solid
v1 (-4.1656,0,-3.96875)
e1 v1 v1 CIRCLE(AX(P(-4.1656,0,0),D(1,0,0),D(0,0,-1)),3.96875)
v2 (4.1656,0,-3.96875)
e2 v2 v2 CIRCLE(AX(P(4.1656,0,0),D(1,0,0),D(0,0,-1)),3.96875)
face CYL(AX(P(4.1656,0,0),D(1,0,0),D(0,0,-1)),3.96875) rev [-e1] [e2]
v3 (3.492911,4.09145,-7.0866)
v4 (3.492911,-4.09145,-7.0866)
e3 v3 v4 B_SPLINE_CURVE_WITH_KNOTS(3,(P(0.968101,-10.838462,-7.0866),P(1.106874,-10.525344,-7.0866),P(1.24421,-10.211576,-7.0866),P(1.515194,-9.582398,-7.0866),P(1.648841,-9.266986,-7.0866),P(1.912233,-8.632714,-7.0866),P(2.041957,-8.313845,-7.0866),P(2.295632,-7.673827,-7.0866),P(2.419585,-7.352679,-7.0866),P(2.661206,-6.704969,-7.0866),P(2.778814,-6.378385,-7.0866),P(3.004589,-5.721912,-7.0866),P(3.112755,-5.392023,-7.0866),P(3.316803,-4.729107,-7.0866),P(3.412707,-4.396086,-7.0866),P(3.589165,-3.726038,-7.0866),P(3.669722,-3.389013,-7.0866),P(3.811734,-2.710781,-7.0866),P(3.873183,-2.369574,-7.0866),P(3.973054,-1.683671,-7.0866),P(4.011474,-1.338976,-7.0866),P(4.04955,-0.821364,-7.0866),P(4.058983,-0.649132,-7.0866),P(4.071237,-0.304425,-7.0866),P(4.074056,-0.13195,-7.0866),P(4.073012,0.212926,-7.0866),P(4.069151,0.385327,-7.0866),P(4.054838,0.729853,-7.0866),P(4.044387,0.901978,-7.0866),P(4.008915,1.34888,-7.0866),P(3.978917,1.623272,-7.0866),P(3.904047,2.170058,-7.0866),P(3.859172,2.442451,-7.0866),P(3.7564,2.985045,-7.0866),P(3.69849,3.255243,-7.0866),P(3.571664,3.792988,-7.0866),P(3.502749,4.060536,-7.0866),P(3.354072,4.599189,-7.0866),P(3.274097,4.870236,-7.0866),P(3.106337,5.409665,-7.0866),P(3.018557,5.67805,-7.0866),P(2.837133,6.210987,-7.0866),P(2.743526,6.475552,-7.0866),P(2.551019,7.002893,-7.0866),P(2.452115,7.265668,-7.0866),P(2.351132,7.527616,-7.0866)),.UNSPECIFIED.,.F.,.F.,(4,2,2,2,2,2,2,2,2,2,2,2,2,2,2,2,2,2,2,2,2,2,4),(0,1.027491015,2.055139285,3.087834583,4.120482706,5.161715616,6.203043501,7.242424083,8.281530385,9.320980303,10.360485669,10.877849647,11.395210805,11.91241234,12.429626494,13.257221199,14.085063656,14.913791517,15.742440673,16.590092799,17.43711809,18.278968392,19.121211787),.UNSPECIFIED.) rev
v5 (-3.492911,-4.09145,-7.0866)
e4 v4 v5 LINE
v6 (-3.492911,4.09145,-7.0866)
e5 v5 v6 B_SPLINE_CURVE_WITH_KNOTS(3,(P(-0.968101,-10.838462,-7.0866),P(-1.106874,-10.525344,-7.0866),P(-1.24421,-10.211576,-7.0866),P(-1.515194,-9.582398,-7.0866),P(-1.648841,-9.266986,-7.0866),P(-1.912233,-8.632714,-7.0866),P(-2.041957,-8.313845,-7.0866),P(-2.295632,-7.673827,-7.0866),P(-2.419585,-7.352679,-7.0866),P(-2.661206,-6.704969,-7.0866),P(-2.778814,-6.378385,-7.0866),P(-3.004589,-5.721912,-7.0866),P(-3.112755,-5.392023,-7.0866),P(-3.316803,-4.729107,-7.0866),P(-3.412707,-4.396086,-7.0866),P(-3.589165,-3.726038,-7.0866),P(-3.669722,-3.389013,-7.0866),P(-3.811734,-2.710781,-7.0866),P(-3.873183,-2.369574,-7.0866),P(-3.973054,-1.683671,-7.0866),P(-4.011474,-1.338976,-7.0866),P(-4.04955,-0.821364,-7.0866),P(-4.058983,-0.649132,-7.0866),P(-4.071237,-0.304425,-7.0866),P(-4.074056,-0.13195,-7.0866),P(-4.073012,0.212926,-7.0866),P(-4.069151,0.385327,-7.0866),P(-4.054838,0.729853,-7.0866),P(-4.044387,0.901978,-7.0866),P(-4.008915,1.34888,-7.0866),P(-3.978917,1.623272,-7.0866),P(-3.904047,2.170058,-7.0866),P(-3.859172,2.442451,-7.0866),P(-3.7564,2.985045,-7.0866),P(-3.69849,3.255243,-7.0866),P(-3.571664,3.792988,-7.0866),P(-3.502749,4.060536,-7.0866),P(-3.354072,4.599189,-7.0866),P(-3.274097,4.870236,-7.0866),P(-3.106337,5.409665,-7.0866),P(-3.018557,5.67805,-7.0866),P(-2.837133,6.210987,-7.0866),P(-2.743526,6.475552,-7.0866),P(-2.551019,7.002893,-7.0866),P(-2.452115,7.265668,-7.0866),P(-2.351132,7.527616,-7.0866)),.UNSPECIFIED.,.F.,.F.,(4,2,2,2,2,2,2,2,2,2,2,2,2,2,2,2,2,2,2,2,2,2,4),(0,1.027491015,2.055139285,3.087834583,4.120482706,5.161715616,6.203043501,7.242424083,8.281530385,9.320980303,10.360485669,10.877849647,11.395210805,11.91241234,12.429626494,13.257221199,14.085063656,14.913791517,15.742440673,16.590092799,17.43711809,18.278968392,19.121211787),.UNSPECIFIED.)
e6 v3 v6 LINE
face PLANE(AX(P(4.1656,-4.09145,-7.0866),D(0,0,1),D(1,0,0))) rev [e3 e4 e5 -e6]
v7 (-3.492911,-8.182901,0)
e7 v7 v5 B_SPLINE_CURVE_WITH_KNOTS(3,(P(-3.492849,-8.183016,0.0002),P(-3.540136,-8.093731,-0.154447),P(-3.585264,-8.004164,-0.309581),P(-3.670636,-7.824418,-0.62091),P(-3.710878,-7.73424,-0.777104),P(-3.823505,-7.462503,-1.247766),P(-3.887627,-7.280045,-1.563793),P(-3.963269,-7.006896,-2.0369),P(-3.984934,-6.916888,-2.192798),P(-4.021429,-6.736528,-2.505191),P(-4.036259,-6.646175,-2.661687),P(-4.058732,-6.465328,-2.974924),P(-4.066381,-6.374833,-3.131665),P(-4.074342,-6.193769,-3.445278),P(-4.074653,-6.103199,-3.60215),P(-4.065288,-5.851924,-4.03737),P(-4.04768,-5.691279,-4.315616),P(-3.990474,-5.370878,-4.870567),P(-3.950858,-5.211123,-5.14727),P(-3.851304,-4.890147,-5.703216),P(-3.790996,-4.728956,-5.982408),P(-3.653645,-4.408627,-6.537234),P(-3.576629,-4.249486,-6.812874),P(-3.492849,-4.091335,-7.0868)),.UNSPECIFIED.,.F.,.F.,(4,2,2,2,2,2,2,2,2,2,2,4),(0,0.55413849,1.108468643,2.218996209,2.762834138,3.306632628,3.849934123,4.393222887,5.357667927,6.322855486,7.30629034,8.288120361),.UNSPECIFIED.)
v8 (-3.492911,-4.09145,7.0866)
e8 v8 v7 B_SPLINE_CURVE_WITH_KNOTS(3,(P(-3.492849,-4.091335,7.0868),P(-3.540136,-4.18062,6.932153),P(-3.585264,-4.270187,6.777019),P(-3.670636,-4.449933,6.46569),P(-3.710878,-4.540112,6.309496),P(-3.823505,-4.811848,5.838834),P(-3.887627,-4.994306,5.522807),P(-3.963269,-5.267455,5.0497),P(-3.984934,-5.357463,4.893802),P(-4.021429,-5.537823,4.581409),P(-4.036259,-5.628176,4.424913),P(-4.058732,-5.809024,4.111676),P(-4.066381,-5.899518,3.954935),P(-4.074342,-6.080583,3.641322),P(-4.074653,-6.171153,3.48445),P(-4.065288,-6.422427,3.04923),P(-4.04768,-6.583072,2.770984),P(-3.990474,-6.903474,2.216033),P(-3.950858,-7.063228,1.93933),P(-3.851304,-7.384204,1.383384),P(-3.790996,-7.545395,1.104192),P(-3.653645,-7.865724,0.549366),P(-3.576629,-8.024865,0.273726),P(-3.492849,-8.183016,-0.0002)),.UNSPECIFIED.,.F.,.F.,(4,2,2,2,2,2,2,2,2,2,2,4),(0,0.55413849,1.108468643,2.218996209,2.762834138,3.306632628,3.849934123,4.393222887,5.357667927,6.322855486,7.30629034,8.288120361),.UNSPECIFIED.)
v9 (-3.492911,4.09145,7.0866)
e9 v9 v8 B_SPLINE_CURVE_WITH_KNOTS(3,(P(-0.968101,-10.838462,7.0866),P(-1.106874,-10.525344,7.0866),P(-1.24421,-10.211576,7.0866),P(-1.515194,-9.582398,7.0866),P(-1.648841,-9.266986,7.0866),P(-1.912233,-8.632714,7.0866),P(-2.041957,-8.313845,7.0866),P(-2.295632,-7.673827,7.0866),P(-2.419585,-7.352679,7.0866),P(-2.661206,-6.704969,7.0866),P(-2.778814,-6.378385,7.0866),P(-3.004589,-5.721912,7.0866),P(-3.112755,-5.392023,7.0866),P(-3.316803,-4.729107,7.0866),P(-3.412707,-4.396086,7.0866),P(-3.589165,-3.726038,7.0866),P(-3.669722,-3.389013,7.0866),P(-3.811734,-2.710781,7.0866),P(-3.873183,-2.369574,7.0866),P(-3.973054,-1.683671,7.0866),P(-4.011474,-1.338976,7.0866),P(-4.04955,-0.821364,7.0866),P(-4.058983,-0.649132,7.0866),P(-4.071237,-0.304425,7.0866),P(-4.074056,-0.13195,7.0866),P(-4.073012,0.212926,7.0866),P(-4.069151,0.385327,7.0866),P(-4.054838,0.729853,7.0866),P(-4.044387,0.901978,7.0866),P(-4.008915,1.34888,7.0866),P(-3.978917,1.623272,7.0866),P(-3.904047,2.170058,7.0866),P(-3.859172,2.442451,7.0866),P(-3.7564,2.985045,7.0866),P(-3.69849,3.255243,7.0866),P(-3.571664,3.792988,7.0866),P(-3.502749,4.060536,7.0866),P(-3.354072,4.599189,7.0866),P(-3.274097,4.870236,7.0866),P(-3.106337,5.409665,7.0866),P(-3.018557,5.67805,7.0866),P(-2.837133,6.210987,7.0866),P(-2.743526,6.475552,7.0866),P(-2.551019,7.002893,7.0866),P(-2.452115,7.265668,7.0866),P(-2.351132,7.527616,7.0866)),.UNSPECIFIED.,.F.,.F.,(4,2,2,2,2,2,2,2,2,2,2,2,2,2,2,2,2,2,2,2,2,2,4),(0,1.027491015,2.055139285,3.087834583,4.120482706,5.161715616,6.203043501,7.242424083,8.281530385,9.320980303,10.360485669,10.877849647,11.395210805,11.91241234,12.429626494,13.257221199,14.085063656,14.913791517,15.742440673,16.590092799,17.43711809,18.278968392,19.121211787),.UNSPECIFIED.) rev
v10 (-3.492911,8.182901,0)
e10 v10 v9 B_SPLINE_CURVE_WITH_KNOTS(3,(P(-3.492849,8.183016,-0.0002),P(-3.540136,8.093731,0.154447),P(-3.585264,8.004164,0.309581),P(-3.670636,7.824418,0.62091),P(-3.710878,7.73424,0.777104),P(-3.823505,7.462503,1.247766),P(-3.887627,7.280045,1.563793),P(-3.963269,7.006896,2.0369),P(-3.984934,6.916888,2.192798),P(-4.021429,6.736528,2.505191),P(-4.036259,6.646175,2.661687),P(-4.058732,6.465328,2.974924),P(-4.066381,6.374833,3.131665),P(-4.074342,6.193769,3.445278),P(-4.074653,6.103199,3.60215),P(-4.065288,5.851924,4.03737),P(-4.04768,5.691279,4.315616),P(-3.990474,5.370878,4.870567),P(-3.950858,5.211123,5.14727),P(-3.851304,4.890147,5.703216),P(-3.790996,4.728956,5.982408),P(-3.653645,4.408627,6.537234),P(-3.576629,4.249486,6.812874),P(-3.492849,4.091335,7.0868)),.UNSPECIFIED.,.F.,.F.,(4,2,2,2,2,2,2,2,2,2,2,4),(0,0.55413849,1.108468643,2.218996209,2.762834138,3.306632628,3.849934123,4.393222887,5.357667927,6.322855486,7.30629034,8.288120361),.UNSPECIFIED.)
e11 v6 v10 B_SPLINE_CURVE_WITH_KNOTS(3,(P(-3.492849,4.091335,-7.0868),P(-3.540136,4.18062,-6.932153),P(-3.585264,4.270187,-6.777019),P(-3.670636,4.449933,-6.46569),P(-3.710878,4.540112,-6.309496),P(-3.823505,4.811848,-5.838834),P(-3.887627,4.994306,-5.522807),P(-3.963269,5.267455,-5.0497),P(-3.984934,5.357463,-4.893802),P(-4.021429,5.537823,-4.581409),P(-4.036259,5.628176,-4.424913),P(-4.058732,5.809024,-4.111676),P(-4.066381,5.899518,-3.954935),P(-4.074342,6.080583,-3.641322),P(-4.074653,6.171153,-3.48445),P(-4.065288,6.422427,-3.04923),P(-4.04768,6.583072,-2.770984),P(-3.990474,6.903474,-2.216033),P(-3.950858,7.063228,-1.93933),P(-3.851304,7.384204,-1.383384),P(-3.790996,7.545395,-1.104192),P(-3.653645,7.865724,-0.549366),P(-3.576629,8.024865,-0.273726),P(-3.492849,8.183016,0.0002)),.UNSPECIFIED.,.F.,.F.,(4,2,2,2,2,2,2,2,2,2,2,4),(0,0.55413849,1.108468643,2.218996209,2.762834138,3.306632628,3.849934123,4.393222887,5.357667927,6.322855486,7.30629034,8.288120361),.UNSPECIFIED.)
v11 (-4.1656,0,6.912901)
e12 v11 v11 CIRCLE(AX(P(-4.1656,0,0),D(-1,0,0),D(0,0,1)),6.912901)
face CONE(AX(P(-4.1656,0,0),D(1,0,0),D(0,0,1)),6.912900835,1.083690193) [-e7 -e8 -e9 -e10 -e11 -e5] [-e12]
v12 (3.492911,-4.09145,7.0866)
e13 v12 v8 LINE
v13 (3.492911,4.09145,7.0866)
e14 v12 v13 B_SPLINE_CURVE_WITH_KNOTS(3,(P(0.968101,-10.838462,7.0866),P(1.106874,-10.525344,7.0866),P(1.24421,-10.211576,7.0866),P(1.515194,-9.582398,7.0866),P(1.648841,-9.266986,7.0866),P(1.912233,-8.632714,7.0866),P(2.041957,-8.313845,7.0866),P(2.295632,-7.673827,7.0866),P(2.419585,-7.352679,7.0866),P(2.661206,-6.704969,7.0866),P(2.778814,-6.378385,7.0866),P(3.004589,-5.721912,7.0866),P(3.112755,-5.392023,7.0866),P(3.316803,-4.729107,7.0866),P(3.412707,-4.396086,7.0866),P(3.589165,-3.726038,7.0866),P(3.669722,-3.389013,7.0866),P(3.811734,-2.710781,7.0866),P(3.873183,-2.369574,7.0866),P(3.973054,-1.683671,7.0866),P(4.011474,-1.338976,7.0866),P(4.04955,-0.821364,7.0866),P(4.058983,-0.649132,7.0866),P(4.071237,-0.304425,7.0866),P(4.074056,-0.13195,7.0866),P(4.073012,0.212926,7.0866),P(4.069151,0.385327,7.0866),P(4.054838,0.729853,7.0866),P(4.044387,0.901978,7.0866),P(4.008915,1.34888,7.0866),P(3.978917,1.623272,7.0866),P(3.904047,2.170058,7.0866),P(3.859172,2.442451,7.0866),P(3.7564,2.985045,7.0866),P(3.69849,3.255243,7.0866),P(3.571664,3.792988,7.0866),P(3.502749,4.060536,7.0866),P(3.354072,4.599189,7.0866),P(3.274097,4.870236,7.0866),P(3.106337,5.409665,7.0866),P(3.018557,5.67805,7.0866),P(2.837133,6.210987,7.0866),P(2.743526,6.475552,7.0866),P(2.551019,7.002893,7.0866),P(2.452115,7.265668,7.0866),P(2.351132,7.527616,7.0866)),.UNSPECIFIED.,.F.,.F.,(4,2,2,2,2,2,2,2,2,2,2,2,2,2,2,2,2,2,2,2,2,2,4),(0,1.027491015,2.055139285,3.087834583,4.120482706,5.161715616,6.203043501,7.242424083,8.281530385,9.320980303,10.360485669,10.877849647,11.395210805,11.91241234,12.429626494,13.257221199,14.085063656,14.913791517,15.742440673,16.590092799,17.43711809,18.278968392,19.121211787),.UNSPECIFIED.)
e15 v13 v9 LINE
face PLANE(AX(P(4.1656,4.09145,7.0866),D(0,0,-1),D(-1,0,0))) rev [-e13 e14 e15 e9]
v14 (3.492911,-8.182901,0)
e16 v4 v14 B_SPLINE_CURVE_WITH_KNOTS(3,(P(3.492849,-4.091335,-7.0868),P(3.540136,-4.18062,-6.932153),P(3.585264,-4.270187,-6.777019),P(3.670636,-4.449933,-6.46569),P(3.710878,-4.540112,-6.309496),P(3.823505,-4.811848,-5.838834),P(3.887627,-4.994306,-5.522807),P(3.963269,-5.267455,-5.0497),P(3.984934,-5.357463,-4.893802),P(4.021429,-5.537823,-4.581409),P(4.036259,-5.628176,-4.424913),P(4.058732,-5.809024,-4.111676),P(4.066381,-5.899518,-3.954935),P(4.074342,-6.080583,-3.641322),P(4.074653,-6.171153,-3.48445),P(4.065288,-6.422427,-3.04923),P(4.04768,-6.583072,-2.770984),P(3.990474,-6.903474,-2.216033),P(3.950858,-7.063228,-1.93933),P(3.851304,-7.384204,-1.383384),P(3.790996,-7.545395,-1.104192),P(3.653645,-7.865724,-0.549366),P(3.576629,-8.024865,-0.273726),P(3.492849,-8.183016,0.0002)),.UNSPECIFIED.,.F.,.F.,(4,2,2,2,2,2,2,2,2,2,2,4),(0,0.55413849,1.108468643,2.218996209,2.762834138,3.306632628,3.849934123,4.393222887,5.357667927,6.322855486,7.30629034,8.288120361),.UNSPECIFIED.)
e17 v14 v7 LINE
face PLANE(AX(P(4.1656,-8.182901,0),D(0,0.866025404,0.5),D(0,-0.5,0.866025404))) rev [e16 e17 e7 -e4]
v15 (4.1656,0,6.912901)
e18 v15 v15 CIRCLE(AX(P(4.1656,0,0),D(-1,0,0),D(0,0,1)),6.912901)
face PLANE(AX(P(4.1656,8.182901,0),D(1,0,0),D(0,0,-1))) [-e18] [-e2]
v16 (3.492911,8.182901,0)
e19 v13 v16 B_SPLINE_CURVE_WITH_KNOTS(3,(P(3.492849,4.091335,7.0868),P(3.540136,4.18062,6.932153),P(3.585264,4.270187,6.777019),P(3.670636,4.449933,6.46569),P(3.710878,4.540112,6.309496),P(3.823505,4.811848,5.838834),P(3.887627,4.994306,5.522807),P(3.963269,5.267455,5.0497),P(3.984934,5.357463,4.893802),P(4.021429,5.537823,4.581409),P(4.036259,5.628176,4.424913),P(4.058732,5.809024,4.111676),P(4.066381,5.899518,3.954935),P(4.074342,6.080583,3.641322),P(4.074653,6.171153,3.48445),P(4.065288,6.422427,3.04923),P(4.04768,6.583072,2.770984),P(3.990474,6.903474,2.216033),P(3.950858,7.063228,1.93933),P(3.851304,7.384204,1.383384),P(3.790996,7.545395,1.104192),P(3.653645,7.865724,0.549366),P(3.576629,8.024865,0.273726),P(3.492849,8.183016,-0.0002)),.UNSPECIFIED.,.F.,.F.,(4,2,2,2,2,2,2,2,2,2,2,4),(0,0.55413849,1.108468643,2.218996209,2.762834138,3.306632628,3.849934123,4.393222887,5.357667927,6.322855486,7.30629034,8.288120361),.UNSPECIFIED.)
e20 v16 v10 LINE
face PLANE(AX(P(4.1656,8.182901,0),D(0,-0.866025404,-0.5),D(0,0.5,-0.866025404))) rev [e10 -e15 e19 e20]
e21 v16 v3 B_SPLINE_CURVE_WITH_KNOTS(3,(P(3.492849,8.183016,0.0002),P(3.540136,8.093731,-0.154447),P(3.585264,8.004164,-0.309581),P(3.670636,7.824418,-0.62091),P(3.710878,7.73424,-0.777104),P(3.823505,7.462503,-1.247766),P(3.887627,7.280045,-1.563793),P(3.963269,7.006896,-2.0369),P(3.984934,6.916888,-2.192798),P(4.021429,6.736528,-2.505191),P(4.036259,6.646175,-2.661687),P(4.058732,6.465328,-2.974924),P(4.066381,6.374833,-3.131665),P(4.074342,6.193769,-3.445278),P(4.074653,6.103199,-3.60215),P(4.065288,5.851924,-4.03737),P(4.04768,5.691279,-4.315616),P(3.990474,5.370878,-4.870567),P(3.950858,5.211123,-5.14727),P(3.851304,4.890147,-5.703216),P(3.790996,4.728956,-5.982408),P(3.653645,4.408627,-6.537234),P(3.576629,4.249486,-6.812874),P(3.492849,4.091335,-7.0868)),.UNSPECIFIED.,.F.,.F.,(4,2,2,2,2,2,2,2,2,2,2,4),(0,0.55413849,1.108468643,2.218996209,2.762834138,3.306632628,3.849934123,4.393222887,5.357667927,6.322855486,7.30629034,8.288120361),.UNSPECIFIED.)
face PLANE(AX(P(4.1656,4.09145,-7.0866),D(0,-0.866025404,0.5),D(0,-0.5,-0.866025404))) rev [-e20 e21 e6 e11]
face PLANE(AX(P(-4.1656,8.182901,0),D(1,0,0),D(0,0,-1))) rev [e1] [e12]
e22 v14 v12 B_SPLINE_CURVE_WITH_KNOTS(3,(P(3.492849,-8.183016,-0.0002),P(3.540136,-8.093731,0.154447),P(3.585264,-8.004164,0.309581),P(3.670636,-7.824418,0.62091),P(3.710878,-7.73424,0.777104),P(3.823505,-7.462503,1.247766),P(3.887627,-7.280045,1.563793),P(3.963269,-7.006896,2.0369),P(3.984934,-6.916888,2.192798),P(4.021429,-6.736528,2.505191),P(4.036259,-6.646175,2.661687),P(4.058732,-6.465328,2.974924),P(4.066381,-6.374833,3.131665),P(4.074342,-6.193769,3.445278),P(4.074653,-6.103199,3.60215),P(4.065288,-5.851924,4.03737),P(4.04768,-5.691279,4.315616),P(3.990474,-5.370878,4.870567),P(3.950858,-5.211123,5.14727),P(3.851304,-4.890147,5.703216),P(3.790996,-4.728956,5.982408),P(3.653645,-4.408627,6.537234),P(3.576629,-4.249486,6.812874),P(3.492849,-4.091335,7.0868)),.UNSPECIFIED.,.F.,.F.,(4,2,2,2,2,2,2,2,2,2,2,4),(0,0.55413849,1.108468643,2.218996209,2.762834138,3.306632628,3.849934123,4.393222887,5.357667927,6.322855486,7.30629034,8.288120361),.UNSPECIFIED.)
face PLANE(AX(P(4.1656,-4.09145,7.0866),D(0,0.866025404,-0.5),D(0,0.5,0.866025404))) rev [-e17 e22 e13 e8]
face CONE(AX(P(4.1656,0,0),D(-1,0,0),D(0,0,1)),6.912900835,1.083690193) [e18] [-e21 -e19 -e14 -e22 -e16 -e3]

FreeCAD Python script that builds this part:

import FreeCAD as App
import Part
import Sketcher
Q = App.Units.Quantity


def add_polygon(sketch, points):
    """Adds a closed chain of lines whose ends are joined by coincident constraints."""
    first, n = sketch.GeometryCount, len(points)
    for a, b in zip(points, points[1:] + points[:1]):
        sketch.addGeometry(Part.LineSegment(App.Vector(*a, 0), App.Vector(*b, 0)), False)
    for i in range(n):
        sketch.addConstraint(Sketcher.Constraint("Coincident", first + i, 2, first + (i + 1) % n, 1))

doc = App.newDocument("Part")
params = doc.addObject("Spreadsheet::Sheet", "Params")
for row, (alias, value) in enumerate([
    ("pad1_length", "0.328 in"),
    ("sketch2_height", "0.05 in"),
    ("groove_angle", "360 deg"),
    ("sketch3_diameter", "0.3125 in"),
    ("hole_diameter", "0.3125 in"),
], start=1):
    params.set(f"A{row}", alias)
    params.set(f"B{row}", "=" + value)
    params.setAlias(f"B{row}", alias)

body = doc.addObject("PartDesign::Body", "Body")

# Sketch on YZ plane
sketch1 = body.newObject("Sketcher::SketchObject", "Sketch")
sketch1.AttachmentSupport = (doc.getObject("YZ_Plane"), [""])
sketch1.MapMode = "FlatFace"
add_polygon(sketch1, [(8, 0), (4, 7), (-4, 7), (-8, 0), (-4, -7), (4, -7)])  # lines 0-5
sketch1.addConstraint(Sketcher.Constraint("Horizontal", 1))
sketch1.addConstraint(Sketcher.Constraint("Horizontal", 4))
sketch1.addConstraint(Sketcher.Constraint("Symmetric", 0, 2, 3, 2, -1, 1))
sketch1.addConstraint(Sketcher.Constraint("Symmetric", 2, 2, 5, 2, -1, 1))
sketch1.addConstraint(Sketcher.Constraint("PointOnObject", 2, 2, -1))
sketch1.addConstraint(Sketcher.Constraint("Parallel", 2, 5))
sketch1.addConstraint(Sketcher.Constraint("Vertical", 1, 2, 3, 2))
sketch1.addConstraint(Sketcher.Constraint("Angle", 0, Q("120 deg")))
sketch1.addConstraint(Sketcher.Constraint("DistanceY", -1, 1, 0, 2, Q("0.279 in")))
sketch1.addConstraint(Sketcher.Constraint("DistanceX", 1, 2, 1, 1, 8.182901))
pad1 = body.newObject("PartDesign::Pad", "Pad")
pad1.Profile = sketch1
pad1.setExpression("Length", "Params.pad1_length")
pad1.Midplane = True

# Sketch on XY plane
sketch2 = body.newObject("Sketcher::SketchObject", "Sketch001")
sketch2.AttachmentSupport = (doc.getObject("XY_Plane"), [""])
sketch2.MapMode = "FlatFace"
add_polygon(sketch2, [(3.5, 8.2), (4.2, 6.9), (4.2, 8.2)])  # lines 0-2
sketch2.addConstraint(Sketcher.Constraint("Vertical", 1))
sketch2.addConstraint(Sketcher.Constraint("Horizontal", 2))
sketch2.addConstraint(Sketcher.Constraint("DistanceY", 1, 1, 1, 2, Q("0.05 in")))
sketch2.addConstraint(Sketcher.Constraint("DistanceX", -1, 1, 0, 2, Q("0.164 in")))
sketch2.addConstraint(Sketcher.Constraint("DistanceX", 2, 2, 2, 1, 0.672689))
sketch2.addConstraint(Sketcher.Constraint("DistanceY", -1, 1, 0, 2, 6.912901))
sketch2.setExpression("Constraints[5]", "Params.sketch2_height")
groove = body.newObject("PartDesign::Groove", "Groove")
groove.Profile = sketch2
groove.ReferenceAxis = (sketch2, ["H_Axis"])
groove.setExpression("Angle", "Params.groove_angle")
doc.recompute()

mirrored = body.newObject("PartDesign::Mirrored", "Mirrored")
mirrored.Originals = [groove]
mirrored.MirrorPlane = (doc.getObject("YZ_Plane"), [""])
body.Tip = mirrored

# Sketch on YZ plane
sketch3 = body.newObject("Sketcher::SketchObject", "Sketch002")
sketch3.AttachmentSupport = (doc.getObject("YZ_Plane"), [""])
sketch3.MapMode = "FlatFace"
sketch3.AttachmentOffset = App.Placement(App.Vector(0, 0, 0.164 * 25.4), App.Rotation())
sketch3.addGeometry(Part.Circle(App.Vector(0, 0, 0), App.Vector(0, 0, 1), 4), False)
sketch3.addConstraint(Sketcher.Constraint("Coincident", 0, 3, -1, 1))
sketch3.addConstraint(Sketcher.Constraint("Diameter", 0, Q("0.3125 in")))
sketch3.setExpression("Constraints[1]", "Params.sketch3_diameter")
doc.recompute()
hole = body.newObject("PartDesign::Hole", "Hole")
hole.Profile = sketch3
hole.ThreadType = "None"
hole.setExpression("Diameter", "Params.hole_diameter")
hole.DepthType = "ThroughAll"

doc.recompute()
